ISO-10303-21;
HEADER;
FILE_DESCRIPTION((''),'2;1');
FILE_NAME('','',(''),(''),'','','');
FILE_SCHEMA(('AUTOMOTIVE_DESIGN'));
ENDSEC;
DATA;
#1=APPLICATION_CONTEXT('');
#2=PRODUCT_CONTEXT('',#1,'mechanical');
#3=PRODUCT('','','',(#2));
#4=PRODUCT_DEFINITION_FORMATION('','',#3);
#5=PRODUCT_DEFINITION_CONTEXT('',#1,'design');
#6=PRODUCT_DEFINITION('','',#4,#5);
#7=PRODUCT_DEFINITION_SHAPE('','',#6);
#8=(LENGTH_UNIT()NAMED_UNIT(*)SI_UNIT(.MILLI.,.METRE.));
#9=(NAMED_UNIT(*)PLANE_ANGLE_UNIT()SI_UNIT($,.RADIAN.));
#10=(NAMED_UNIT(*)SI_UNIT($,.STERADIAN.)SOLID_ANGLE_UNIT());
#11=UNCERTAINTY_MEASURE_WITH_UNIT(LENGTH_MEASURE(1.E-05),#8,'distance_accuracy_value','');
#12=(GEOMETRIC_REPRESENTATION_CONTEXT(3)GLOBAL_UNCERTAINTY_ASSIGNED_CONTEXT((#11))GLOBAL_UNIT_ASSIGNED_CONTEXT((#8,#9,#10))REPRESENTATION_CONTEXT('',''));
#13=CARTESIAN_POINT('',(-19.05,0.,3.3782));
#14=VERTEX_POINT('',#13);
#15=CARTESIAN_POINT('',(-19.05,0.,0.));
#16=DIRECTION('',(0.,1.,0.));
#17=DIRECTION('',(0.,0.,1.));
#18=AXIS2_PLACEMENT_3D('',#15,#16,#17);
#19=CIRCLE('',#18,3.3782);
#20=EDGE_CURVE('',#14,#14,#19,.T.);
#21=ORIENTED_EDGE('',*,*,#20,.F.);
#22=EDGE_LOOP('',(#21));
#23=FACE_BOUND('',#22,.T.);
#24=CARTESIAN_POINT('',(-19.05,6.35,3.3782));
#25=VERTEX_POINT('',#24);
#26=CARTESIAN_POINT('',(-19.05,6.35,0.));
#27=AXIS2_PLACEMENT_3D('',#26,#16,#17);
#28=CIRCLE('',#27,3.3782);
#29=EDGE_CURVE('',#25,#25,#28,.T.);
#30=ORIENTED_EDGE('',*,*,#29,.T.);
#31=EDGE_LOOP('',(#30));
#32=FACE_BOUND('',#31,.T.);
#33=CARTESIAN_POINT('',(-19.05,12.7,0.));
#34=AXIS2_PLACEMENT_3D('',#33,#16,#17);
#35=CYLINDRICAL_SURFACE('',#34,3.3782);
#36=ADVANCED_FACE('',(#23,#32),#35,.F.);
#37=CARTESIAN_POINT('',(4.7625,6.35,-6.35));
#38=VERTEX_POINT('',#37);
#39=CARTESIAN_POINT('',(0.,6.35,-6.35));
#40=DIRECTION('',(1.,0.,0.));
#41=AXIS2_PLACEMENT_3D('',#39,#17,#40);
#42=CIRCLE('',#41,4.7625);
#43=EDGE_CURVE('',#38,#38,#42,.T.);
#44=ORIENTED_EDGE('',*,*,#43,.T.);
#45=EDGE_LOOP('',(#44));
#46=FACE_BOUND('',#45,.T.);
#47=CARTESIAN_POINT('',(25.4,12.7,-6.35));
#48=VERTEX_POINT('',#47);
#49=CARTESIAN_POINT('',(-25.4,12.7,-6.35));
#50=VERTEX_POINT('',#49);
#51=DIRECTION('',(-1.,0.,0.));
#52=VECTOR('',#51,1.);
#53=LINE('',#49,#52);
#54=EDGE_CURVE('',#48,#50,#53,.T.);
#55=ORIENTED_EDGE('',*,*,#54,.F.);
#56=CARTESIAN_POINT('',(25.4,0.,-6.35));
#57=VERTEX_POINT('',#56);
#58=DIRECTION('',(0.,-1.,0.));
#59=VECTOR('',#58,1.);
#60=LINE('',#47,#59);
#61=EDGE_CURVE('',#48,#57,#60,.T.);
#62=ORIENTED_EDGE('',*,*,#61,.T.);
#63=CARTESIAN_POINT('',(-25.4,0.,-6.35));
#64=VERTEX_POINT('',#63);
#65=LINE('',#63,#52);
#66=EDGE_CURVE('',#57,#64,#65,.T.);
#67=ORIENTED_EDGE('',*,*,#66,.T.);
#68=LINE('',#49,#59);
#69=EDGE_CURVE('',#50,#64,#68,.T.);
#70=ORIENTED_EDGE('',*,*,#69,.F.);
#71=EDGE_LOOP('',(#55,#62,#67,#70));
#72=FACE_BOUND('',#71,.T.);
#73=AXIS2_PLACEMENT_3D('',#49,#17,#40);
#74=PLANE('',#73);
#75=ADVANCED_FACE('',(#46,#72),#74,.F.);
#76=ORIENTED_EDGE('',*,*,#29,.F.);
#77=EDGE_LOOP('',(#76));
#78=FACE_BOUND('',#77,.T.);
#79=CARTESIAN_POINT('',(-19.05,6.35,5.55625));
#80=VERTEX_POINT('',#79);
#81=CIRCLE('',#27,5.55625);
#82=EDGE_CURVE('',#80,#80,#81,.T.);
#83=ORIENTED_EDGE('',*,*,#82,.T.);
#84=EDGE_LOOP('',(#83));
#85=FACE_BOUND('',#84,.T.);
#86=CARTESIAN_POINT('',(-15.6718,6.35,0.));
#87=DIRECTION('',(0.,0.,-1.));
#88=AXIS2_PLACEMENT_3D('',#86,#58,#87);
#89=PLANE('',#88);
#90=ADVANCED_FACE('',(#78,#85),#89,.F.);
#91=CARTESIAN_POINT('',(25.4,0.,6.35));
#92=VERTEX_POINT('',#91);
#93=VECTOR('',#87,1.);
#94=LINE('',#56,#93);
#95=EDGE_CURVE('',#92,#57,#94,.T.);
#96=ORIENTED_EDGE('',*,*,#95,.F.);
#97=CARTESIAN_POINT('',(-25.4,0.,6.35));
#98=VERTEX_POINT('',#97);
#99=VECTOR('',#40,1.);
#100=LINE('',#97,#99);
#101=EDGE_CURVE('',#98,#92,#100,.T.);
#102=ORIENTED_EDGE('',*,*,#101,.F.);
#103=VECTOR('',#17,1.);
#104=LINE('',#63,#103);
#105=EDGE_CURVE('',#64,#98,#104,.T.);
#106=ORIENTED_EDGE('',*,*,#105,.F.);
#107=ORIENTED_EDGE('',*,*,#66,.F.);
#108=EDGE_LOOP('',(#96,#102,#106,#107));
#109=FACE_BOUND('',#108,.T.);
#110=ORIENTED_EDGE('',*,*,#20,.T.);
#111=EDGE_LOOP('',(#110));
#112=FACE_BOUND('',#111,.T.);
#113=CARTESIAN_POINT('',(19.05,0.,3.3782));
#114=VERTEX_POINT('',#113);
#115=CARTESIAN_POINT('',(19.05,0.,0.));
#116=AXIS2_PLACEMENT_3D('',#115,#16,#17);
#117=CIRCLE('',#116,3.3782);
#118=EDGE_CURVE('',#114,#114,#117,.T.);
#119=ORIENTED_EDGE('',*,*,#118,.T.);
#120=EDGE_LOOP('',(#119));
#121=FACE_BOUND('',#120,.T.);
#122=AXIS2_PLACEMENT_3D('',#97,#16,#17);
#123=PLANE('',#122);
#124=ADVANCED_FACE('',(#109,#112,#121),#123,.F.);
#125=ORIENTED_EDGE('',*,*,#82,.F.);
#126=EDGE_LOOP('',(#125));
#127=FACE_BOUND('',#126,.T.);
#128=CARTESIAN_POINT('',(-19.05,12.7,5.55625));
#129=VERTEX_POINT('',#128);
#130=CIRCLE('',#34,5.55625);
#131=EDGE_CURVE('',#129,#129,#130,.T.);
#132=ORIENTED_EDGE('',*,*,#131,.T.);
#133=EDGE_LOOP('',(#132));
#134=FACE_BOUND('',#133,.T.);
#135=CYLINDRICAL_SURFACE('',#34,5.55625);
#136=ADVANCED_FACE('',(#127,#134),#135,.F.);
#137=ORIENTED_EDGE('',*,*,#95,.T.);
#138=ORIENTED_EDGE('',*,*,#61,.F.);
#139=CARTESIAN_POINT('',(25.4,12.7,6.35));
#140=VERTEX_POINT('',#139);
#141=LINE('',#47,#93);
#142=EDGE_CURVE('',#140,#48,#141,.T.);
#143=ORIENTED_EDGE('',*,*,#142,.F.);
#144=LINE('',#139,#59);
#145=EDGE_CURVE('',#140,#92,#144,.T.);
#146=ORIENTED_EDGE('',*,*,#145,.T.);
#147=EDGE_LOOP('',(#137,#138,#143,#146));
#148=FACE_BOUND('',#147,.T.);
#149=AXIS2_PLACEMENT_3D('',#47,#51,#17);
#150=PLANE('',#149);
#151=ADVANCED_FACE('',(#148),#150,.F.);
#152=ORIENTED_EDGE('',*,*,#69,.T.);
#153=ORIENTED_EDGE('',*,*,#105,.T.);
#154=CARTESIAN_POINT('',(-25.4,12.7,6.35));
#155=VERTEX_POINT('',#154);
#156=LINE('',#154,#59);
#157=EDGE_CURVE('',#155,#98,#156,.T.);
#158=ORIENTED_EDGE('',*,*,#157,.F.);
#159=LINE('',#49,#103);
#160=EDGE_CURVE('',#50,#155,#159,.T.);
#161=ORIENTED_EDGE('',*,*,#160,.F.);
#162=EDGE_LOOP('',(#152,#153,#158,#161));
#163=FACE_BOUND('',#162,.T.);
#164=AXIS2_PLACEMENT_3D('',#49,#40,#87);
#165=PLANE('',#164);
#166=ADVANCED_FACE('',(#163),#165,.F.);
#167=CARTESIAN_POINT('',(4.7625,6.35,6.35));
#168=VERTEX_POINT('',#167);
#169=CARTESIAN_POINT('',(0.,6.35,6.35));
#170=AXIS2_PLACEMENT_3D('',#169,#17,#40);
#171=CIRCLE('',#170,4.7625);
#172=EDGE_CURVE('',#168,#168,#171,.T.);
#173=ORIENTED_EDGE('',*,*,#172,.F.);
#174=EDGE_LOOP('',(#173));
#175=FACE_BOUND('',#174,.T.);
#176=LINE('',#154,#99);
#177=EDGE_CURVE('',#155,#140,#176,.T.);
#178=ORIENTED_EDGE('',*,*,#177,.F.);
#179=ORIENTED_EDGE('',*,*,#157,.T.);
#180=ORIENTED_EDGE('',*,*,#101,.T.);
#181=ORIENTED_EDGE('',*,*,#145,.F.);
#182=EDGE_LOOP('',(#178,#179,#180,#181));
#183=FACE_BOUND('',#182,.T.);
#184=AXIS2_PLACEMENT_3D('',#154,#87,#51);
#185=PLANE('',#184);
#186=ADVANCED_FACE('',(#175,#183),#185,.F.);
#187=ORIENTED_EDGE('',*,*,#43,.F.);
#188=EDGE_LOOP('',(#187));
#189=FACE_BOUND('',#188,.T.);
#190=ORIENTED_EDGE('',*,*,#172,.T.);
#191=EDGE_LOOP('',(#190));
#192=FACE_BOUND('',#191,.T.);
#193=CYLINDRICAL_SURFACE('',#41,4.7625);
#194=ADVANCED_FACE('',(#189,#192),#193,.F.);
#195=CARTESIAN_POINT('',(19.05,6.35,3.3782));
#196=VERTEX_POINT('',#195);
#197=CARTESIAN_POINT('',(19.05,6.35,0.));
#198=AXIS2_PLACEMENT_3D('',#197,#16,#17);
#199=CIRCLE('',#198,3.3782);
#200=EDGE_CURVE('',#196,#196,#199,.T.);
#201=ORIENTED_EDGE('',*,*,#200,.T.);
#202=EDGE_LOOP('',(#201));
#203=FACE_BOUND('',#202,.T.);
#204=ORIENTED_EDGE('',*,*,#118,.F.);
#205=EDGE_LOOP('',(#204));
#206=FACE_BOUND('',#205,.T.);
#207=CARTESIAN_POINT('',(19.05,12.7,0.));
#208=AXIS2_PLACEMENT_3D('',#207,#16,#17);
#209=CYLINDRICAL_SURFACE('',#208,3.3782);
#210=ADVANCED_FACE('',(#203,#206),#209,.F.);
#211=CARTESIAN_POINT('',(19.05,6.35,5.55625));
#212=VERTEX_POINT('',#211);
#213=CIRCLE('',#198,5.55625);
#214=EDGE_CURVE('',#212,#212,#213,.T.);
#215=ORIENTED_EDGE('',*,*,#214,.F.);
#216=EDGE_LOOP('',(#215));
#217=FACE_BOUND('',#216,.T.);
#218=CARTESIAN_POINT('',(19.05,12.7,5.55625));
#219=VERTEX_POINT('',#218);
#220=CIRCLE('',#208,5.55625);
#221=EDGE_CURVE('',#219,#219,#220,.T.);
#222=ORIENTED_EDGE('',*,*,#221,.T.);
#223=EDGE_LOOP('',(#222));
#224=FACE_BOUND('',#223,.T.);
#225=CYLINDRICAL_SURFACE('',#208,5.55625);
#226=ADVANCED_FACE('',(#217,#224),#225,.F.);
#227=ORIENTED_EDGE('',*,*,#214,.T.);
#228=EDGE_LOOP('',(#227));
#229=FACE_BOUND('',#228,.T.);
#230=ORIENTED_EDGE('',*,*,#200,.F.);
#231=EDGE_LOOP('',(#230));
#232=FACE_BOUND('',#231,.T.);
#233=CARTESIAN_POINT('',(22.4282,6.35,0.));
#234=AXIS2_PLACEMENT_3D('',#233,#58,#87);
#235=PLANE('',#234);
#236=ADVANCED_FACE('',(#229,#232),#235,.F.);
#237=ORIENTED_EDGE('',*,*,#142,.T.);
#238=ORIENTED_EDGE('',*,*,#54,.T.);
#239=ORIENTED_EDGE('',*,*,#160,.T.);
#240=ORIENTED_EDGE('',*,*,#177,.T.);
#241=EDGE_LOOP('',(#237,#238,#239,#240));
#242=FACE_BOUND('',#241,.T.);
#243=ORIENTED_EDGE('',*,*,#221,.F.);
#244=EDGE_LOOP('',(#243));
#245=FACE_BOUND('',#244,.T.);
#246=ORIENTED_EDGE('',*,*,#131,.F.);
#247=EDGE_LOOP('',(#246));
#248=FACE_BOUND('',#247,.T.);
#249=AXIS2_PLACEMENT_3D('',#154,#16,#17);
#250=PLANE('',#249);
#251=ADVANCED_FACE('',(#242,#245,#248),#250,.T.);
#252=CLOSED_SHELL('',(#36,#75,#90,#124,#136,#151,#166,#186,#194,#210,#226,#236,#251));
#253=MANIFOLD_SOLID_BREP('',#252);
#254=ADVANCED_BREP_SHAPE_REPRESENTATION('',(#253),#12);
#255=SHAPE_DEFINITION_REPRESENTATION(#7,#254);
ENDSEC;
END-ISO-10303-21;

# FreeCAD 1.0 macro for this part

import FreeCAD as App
import Part
import Sketcher
from FreeCAD import Vector
Q = App.Units.Quantity


def add_polygon(sketch, points):
    """Adds a closed chain of lines whose ends are joined by coincident constraints."""
    first, n = sketch.GeometryCount, len(points)
    for a, b in zip(points, points[1:] + points[:1]):
        sketch.addGeometry(Part.LineSegment(App.Vector(*a, 0), App.Vector(*b, 0)), False)
    for i in range(n):
        sketch.addConstraint(Sketcher.Constraint("Coincident", first + i, 2, first + (i + 1) % n, 1))

doc = App.newDocument("Part")
body = doc.addObject("PartDesign::Body", "Body")

# Sketch on XZ plane
sketch1 = body.newObject("Sketcher::SketchObject", "Sketch")
sketch1.AttachmentSupport = (doc.getObject("XZ_Plane"), [""])
sketch1.MapMode = "FlatFace"
add_polygon(sketch1, [(-25, -6), (-25, 6), (25, 6), (25, -6)])  # lines 0-3
sketch1.addConstraint(Sketcher.Constraint("Vertical", 0))
sketch1.addConstraint(Sketcher.Constraint("Horizontal", 1))
sketch1.addConstraint(Sketcher.Constraint("Vertical", 2))
sketch1.addConstraint(Sketcher.Constraint("Horizontal", 3))
sketch1.addConstraint(Sketcher.Constraint("Symmetric", 0, 2, 2, 2, -1, 1))
sketch1.addConstraint(Sketcher.Constraint("DistanceX", 1, 1, 1, 2, Q("2 in")))
sketch1.addConstraint(Sketcher.Constraint("DistanceY", 0, 1, 0, 2, Q("0.5 in")))
pad1 = body.newObject("PartDesign::Pad", "Pad")
pad1.Profile = sketch1
pad1.Length = Q("0.5 in")
pad1.Reversed = True

# Sketch on XY plane
sketch2 = body.newObject("Sketcher::SketchObject", "Sketch001")
sketch2.AttachmentSupport = (doc.getObject("XY_Plane"), [""])
sketch2.MapMode = "FlatFace"
sketch2.AttachmentOffset = App.Placement(Vector(0, 0, 0.25 * 25.4), App.Rotation())
sketch2.addGeometry(Part.Circle(Vector(0, 6.3, 0), Vector(0, 0, 1), 4.8), False)
sketch2.addConstraint(Sketcher.Constraint("PointOnObject", 0, 3, -2))
sketch2.addConstraint(Sketcher.Constraint("Diameter", 0, Q("0.375 in")))
sketch2.addConstraint(Sketcher.Constraint("DistanceY", -1, 1, 0, 3, Q("0.25 in")))
pocket1 = body.newObject("PartDesign::Pocket", "Pocket")
pocket1.Profile = sketch2
pocket1.Type = "ThroughAll"

# Sketch on XZ plane
sketch3 = body.newObject("Sketcher::SketchObject", "Sketch002")
sketch3.AttachmentSupport = (doc.getObject("XZ_Plane"), [""])
sketch3.MapMode = "FlatFace"
sketch3.AttachmentOffset = App.Placement(Vector(0, 0, -0.5 * 25.4), App.Rotation())
sketch3.addGeometry(Part.Circle(Vector(19.1, 0, 0), Vector(0, 0, 1), 3.4), False)
sketch3.addGeometry(Part.Circle(Vector(-19.1, 0, 0), Vector(0, 0, 1), 3.4), False)
sketch3.addConstraint(Sketcher.Constraint("Equal", 0, 1))
sketch3.addConstraint(Sketcher.Constraint("Symmetric", 0, 3, 1, 3, -1, 1))
sketch3.addConstraint(Sketcher.Constraint("PointOnObject", 0, 3, -1))
sketch3.addConstraint(Sketcher.Constraint("Diameter", 0, Q("0.266 in")))
sketch3.addConstraint(Sketcher.Constraint("DistanceX", 1, 3, 0, 3, Q("1.5 in")))
doc.recompute()
hole = body.newObject("PartDesign::Hole", "Hole")
hole.Profile = sketch3
hole.ThreadType = "None"
hole.Diameter = Q("0.266 in")
hole.DepthType = "ThroughAll"
hole.HoleCutType = "Counterbore"
hole.HoleCutDiameter = Q("0.4375 in")
hole.HoleCutDepth = Q("0.25 in")
hole.Reversed = True

doc.recompute()
